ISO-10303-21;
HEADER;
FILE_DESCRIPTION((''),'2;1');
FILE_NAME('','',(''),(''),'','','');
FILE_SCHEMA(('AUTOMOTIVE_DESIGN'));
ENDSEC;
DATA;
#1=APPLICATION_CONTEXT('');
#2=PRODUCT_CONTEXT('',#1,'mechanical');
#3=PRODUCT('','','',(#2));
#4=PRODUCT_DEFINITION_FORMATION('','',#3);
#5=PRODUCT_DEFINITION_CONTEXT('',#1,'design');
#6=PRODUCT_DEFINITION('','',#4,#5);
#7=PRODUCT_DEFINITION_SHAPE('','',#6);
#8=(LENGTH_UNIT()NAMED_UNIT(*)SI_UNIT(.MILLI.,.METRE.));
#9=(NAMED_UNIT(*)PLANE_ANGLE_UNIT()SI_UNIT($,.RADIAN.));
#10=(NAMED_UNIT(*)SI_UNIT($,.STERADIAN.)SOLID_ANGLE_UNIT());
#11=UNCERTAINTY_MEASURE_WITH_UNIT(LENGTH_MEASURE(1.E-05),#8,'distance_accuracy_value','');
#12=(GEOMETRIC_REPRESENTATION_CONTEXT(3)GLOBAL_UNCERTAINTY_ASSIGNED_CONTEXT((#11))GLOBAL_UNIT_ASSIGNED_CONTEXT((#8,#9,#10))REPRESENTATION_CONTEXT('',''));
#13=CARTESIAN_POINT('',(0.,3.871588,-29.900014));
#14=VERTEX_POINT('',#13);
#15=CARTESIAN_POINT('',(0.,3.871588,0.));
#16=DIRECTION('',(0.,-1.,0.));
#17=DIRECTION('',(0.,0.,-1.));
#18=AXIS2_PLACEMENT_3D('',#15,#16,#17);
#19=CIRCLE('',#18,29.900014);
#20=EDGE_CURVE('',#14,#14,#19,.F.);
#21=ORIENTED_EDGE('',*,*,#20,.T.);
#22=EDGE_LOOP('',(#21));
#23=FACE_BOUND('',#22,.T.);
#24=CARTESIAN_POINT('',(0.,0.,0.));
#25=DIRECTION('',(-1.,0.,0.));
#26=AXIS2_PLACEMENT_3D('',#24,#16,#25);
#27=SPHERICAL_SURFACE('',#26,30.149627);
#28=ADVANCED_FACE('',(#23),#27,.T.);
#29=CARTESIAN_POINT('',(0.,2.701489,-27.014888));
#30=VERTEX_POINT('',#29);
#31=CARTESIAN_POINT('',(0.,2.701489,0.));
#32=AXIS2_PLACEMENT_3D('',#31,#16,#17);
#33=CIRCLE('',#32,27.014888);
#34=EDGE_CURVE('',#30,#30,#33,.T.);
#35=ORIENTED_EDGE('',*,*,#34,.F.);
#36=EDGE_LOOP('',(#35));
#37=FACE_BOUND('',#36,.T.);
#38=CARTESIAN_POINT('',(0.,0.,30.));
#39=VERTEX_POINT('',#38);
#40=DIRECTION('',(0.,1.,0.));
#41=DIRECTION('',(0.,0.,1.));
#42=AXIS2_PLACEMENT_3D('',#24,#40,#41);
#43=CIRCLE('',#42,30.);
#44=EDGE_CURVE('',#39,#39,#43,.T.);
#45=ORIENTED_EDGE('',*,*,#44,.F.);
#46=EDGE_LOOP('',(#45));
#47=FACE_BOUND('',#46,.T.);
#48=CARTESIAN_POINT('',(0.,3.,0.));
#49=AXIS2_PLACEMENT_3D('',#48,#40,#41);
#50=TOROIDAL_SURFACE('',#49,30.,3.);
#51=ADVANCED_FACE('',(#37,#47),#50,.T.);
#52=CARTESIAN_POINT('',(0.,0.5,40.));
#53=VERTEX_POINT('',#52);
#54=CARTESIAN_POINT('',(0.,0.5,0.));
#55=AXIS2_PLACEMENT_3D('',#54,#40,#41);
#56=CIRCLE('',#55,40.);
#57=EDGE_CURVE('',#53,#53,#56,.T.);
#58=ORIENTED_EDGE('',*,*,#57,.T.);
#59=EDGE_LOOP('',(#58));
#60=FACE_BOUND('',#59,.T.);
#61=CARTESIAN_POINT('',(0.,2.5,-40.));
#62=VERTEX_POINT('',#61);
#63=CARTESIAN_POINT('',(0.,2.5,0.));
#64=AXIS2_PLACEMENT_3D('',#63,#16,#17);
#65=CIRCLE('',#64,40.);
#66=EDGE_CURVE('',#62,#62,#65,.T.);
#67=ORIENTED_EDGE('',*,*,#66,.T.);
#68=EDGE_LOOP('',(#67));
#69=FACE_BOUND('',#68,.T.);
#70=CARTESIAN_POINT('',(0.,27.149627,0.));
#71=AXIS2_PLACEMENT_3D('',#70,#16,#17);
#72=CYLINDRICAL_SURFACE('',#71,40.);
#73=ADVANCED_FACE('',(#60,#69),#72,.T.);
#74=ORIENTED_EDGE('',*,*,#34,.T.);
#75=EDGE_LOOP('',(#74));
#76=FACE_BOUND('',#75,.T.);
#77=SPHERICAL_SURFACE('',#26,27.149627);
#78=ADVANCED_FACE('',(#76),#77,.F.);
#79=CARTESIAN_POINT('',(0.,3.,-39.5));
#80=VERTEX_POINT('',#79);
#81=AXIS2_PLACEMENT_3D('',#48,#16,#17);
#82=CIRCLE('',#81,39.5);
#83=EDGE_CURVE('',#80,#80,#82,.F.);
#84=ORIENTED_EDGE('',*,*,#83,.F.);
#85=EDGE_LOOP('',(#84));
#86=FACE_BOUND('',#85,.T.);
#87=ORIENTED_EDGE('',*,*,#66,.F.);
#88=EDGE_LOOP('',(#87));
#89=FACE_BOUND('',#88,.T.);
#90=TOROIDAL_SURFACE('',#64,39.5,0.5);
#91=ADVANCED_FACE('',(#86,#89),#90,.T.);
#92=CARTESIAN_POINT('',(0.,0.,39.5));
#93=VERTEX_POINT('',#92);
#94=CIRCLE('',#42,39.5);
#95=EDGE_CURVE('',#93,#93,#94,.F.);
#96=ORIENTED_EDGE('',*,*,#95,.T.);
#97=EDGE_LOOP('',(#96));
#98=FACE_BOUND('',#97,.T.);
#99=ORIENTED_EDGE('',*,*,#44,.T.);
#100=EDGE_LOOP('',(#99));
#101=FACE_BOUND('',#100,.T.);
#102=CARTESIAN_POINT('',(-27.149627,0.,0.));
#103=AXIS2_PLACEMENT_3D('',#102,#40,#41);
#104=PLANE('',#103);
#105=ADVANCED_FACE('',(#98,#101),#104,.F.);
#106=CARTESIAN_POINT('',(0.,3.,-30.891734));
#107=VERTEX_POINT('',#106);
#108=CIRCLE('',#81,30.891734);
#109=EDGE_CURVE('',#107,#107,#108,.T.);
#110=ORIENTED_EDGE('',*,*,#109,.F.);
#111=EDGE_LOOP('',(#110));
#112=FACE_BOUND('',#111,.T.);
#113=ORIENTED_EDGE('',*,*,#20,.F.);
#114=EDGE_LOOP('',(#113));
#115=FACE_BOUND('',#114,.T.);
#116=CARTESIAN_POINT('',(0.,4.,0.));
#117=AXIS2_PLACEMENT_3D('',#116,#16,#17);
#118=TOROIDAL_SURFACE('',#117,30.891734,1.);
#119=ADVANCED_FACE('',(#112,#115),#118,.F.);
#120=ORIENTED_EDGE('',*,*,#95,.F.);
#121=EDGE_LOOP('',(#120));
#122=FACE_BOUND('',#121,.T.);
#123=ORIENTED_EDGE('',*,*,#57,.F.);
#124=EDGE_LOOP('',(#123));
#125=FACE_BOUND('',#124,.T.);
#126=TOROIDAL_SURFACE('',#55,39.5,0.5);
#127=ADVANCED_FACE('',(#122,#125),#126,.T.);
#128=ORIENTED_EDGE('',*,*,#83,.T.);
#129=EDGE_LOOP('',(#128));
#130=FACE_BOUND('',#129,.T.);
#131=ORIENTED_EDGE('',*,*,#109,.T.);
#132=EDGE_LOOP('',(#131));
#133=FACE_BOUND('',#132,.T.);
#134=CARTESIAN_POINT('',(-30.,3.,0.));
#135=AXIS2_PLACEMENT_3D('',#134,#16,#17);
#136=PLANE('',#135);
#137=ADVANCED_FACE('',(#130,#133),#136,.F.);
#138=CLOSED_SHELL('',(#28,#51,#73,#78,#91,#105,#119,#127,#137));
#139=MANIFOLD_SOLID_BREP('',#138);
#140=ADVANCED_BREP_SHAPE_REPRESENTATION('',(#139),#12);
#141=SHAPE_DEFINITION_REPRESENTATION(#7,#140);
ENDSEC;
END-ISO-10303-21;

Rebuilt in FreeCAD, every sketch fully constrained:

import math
import FreeCAD as App
import Part
import Sketcher
from FreeCAD import Vector
Q = App.Units.Quantity


def edges_at(feature, points):
    """Names of the edges that pass closest to the given points."""
    edges = feature.Shape.Edges
    near = lambda p: min(range(len(edges)), key=lambda i: edges[i].distToShape(Part.Vertex(*p))[0])
    return sorted({f"Edge{near(p) + 1}" for p in points})

doc = App.newDocument("Part")
body = doc.addObject("PartDesign::Body", "Body")

sketch1 = body.newObject("Sketcher::SketchObject", "Sketch")
sketch1.AttachmentSupport = (doc.getObject("XY_Plane"), [""])
sketch1.MapMode = "FlatFace"
sketch1.addGeometry([
    Part.LineSegment(Vector(-40, 0, 0), Vector(-27.1, 0, 0)),
    Part.ArcOfCircle(Part.Circle(Vector(0, 0, 0), Vector(0, 0, 1), 27.1), math.radians(90), math.radians(180)),
    Part.LineSegment(Vector(0, 27.1, 0), Vector(0, 30.1, 0)),
    Part.ArcOfCircle(Part.Circle(Vector(0, 0, 0), Vector(0, 0, 1), 30.1), math.radians(90), math.radians(174)),
    Part.LineSegment(Vector(-30, 3, 0), Vector(-40, 3, 0)),
    Part.LineSegment(Vector(-40, 3, 0), Vector(-40, 0, 0)),
], False)
sketch1.addConstraint([
    Sketcher.Constraint("Coincident", 0, 2, 1, 2),
    Sketcher.Constraint("Coincident", 1, 1, 2, 1),
    Sketcher.Constraint("Coincident", 2, 2, 3, 1),
    Sketcher.Constraint("Coincident", 3, 2, 4, 1),
    Sketcher.Constraint("Coincident", 4, 2, 5, 1),
    Sketcher.Constraint("Coincident", 5, 2, 0, 1),
    Sketcher.Constraint("Horizontal", 0),
    Sketcher.Constraint("Vertical", 2),
    Sketcher.Constraint("Horizontal", 4),
    Sketcher.Constraint("Vertical", 5),
    Sketcher.Constraint("Coincident", 1, 3, -1, 1),
    Sketcher.Constraint("Coincident", 3, 3, -1, 1),
    Sketcher.Constraint("PointOnObject", 0, 2, -1),
    Sketcher.Constraint("PointOnObject", 1, 1, -2),
    Sketcher.Constraint("Equal", 2, 5),
    Sketcher.Constraint("DistanceX", 4, 2, 4, 1, Q("10 mm")),
    Sketcher.Constraint("DistanceY", 2, 1, 2, 2, Q("3 mm")),
    Sketcher.Constraint("DistanceX", 3, 2, -1, 1, Q("30 mm")),
])
revolution = body.newObject("PartDesign::Revolution", "Revolution")
revolution.Profile = sketch1
revolution.ReferenceAxis = (sketch1, ["V_Axis"])
revolution.Angle = 360
doc.recompute()

fillet = body.newObject("PartDesign::Fillet", "Fillet")
fillet.Base = (revolution, edges_at(revolution, [(30, 3, 0)]))
fillet.Radius = 1
doc.recompute()

fillet2 = body.newObject("PartDesign::Fillet", "Fillet001")
fillet2.Base = (fillet, edges_at(fillet, [(27.15, 0, 0)]))
fillet2.Radius = 3
doc.recompute()

fillet3 = body.newObject("PartDesign::Fillet", "Fillet002")
fillet3.Base = (fillet2, edges_at(fillet2, [(40, 3, 0), (40, 0, 0)]))
fillet3.Radius = 0.5

doc.recompute()
